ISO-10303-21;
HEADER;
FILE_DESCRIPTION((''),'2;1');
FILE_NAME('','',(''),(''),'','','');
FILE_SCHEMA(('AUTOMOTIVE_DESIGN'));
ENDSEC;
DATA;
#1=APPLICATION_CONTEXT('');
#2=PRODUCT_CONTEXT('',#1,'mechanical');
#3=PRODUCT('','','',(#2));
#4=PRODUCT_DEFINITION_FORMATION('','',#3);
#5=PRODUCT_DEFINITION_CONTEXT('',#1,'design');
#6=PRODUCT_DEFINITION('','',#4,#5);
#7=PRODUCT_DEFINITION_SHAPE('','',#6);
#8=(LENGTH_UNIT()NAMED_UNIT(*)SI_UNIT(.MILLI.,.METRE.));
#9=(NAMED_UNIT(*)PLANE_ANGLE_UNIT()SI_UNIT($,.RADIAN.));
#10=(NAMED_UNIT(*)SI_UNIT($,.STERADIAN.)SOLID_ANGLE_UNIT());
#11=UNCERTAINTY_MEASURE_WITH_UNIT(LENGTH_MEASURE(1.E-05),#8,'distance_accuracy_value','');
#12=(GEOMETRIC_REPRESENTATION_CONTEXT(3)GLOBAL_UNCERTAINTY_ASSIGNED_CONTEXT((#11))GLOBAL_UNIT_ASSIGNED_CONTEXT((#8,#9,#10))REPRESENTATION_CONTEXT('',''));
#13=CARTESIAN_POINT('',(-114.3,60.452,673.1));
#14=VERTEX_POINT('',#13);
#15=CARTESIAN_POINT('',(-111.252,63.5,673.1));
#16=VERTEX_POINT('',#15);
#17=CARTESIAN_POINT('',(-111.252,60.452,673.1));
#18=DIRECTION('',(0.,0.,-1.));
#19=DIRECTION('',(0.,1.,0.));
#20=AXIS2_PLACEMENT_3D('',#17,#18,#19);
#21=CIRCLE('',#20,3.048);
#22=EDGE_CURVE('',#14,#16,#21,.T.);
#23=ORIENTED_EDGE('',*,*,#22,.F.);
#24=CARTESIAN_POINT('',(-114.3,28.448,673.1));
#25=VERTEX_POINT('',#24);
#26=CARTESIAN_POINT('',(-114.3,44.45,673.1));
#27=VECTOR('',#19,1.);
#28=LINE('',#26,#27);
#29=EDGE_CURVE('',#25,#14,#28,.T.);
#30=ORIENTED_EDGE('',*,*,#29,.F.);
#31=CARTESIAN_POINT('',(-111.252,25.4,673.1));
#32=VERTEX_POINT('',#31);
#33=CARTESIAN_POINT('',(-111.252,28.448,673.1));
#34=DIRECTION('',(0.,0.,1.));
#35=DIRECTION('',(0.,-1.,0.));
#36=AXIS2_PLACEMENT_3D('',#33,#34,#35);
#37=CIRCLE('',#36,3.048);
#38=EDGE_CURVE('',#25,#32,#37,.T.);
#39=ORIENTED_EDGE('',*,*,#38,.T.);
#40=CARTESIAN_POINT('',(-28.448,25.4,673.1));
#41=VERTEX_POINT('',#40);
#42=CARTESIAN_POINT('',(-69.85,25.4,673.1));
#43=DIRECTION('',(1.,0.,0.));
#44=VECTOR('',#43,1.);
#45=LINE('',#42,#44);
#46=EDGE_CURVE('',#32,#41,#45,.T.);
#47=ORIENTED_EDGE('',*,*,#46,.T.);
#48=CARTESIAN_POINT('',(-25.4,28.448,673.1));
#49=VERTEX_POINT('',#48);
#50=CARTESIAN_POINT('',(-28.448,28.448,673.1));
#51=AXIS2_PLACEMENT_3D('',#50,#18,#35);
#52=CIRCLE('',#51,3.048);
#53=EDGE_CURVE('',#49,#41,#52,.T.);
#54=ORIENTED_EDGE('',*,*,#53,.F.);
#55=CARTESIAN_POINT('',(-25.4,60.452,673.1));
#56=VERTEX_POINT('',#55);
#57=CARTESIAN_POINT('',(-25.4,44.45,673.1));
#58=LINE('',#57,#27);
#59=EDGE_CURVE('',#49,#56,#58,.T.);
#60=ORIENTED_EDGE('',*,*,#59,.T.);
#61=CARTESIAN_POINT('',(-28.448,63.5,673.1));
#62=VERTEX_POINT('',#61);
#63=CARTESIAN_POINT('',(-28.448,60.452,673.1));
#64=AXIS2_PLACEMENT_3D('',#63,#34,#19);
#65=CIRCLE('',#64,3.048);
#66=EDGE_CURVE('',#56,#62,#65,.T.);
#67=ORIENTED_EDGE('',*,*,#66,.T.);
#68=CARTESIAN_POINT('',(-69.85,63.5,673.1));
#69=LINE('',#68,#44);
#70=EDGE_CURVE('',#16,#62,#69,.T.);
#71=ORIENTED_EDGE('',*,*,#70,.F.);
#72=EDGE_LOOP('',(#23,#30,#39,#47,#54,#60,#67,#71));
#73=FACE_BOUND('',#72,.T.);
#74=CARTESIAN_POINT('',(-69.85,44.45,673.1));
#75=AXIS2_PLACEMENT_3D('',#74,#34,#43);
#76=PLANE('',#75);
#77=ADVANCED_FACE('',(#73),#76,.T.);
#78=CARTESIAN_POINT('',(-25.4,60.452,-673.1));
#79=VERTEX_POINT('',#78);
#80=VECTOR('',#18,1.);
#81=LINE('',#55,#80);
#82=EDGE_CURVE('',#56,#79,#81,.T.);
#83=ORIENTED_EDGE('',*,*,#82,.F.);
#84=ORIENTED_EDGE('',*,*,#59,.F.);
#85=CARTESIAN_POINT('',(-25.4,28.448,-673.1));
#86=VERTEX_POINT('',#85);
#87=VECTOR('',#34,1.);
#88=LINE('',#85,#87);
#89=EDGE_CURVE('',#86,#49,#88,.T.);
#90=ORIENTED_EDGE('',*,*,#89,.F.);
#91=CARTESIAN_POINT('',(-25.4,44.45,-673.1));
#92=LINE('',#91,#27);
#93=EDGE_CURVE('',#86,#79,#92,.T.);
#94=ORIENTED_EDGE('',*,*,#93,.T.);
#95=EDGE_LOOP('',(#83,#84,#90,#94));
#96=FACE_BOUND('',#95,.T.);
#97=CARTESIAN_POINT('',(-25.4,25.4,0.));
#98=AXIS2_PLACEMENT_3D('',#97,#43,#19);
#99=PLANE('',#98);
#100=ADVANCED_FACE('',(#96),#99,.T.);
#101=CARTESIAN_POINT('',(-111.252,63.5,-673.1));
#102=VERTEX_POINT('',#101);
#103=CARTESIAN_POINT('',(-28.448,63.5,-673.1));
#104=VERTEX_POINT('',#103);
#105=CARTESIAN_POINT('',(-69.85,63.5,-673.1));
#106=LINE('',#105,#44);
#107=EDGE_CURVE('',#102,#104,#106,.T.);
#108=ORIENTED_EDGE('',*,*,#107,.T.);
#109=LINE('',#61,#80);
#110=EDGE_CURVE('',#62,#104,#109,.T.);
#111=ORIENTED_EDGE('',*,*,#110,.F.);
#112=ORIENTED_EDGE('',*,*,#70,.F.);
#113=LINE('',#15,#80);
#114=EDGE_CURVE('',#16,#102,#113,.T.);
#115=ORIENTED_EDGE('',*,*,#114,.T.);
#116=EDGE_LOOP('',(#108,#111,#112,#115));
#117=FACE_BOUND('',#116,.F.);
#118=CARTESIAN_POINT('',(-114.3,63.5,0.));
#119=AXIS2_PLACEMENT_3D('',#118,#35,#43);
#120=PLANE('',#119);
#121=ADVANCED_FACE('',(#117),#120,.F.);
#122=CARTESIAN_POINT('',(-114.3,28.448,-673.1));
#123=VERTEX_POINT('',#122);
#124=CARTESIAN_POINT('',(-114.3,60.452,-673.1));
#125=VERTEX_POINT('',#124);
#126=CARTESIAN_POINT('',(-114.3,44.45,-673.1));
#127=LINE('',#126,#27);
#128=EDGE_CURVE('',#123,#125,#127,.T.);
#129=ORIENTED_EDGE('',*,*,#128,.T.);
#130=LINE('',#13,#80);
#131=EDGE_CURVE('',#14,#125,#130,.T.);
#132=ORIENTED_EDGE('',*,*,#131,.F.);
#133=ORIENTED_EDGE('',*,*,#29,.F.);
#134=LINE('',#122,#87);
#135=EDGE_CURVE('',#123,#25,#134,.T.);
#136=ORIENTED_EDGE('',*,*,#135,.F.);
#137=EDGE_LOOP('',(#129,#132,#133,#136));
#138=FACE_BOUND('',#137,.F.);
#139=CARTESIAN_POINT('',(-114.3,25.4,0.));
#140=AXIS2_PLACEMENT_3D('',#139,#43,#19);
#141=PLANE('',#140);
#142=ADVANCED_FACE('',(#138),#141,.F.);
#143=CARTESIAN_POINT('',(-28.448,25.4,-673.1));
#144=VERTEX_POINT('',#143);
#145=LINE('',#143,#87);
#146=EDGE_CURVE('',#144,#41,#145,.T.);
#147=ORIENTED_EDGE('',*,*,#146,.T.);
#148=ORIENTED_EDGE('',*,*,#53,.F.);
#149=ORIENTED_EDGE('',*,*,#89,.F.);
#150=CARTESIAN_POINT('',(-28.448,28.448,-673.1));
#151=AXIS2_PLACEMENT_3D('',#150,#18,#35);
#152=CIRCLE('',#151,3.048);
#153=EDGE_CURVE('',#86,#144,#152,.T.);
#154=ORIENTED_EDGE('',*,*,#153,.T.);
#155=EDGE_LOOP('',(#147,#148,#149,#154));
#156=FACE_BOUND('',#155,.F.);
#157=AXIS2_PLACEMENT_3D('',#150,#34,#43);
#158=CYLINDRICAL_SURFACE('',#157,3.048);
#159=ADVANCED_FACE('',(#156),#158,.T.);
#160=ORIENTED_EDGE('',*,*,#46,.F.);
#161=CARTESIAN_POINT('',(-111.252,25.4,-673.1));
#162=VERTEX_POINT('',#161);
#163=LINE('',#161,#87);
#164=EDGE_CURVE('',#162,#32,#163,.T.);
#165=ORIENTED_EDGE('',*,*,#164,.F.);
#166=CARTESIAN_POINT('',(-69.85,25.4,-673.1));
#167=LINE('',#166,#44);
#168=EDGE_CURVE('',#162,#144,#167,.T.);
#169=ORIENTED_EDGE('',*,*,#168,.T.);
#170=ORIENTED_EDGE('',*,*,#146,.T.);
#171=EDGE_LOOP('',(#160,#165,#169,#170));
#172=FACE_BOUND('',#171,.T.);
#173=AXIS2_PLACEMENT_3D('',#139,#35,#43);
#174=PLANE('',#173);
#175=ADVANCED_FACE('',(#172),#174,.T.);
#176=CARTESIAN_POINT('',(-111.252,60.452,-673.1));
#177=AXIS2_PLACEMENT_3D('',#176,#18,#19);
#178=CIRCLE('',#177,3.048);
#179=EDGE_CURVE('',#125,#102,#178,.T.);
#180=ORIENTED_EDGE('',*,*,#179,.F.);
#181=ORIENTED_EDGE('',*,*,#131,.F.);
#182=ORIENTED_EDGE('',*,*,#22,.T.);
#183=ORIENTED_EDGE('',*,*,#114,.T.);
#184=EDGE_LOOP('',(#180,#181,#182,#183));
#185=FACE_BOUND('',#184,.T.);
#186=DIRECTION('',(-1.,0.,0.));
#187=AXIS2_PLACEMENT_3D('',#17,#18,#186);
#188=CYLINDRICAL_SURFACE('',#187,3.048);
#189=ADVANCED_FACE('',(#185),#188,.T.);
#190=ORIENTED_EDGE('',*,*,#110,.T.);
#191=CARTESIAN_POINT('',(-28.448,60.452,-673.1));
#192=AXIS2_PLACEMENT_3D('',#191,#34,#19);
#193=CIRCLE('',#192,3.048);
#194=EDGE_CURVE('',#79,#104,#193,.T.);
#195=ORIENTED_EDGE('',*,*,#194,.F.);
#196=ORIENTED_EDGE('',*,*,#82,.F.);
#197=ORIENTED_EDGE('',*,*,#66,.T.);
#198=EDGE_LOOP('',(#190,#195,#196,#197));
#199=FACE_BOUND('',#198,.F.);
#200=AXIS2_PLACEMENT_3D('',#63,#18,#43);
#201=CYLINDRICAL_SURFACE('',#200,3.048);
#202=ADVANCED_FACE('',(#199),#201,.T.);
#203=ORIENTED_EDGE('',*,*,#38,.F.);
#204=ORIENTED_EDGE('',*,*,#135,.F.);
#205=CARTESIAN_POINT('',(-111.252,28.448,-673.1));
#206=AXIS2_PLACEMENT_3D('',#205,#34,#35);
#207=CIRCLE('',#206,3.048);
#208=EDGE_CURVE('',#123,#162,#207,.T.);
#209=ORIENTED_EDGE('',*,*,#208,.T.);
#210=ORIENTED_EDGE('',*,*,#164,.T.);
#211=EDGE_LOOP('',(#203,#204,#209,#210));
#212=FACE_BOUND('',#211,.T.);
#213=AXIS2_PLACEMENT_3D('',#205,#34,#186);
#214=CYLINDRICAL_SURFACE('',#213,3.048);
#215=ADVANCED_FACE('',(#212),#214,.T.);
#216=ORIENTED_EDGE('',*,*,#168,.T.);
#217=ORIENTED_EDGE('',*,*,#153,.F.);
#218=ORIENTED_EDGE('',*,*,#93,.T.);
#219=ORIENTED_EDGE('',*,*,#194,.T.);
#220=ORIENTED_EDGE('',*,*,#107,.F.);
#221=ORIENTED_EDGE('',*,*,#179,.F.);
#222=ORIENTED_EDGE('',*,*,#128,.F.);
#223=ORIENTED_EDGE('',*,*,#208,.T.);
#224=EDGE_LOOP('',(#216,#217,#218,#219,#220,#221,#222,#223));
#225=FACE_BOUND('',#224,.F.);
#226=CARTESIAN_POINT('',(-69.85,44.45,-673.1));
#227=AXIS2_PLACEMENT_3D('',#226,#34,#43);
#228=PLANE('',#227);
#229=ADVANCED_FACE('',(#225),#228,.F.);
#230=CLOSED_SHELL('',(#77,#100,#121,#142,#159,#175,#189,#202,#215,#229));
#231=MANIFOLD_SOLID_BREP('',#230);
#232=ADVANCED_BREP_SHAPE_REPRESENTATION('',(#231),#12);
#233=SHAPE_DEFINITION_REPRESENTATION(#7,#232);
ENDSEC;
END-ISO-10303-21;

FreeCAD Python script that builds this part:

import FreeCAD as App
import Part
import Sketcher
from FreeCAD import Vector
Q = App.Units.Quantity


def edges_at(feature, points):
    """Names of the edges that pass closest to the given points."""
    edges = feature.Shape.Edges
    near = lambda p: min(range(len(edges)), key=lambda i: edges[i].distToShape(Part.Vertex(*p))[0])
    return sorted({f"Edge{near(p) + 1}" for p in points})

doc = App.newDocument("Part")
body = doc.addObject("PartDesign::Body", "Body")

# Sketch on XY plane
sketch1 = body.newObject("Sketcher::SketchObject", "Sketch")
sketch1.AttachmentSupport = (doc.getObject("XY_Plane"), [""])
sketch1.MapMode = "FlatFace"
sketch1.addGeometry([
    Part.LineSegment(Vector(-114, 64, 0), Vector(-114, 25, 0)),
    Part.LineSegment(Vector(-114, 25, 0), Vector(-25, 25, 0)),
    Part.LineSegment(Vector(-25, 25, 0), Vector(-25, 64, 0)),
    Part.LineSegment(Vector(-25, 64, 0), Vector(-114, 64, 0)),
], False)
sketch1.addConstraint([
    Sketcher.Constraint("Coincident", 0, 2, 1, 1),
    Sketcher.Constraint("Coincident", 1, 2, 2, 1),
    Sketcher.Constraint("Coincident", 2, 2, 3, 1),
    Sketcher.Constraint("Coincident", 3, 2, 0, 1),
    Sketcher.Constraint("Vertical", 0),
    Sketcher.Constraint("Horizontal", 1),
    Sketcher.Constraint("Vertical", 2),
    Sketcher.Constraint("Horizontal", 3),
    Sketcher.Constraint("DistanceX", 1, 1, 1, 2, Q("3.5 in")),
    Sketcher.Constraint("DistanceY", 0, 2, 0, 1, Q("1.5 in")),
    Sketcher.Constraint("DistanceY", -1, 1, 0, 2, Q("1 in")),
    Sketcher.Constraint("DistanceX", 1, 2, -1, 1, Q("1 in")),
])
pad1 = body.newObject("PartDesign::Pad", "Pad")
pad1.Profile = sketch1
pad1.Length = Q("53 in")
pad1.Midplane = True
doc.recompute()

fillet = body.newObject("PartDesign::Fillet", "Fillet")
fillet.Base = (pad1, edges_at(pad1, [
    (-25.4, 63.5, 0),
    (-114.3, 63.5, 0),
    (-25.4, 25.4, 0),
    (-114.3, 25.4, 0),
]))
fillet.Radius = Q("0.12 in")

doc.recompute()
